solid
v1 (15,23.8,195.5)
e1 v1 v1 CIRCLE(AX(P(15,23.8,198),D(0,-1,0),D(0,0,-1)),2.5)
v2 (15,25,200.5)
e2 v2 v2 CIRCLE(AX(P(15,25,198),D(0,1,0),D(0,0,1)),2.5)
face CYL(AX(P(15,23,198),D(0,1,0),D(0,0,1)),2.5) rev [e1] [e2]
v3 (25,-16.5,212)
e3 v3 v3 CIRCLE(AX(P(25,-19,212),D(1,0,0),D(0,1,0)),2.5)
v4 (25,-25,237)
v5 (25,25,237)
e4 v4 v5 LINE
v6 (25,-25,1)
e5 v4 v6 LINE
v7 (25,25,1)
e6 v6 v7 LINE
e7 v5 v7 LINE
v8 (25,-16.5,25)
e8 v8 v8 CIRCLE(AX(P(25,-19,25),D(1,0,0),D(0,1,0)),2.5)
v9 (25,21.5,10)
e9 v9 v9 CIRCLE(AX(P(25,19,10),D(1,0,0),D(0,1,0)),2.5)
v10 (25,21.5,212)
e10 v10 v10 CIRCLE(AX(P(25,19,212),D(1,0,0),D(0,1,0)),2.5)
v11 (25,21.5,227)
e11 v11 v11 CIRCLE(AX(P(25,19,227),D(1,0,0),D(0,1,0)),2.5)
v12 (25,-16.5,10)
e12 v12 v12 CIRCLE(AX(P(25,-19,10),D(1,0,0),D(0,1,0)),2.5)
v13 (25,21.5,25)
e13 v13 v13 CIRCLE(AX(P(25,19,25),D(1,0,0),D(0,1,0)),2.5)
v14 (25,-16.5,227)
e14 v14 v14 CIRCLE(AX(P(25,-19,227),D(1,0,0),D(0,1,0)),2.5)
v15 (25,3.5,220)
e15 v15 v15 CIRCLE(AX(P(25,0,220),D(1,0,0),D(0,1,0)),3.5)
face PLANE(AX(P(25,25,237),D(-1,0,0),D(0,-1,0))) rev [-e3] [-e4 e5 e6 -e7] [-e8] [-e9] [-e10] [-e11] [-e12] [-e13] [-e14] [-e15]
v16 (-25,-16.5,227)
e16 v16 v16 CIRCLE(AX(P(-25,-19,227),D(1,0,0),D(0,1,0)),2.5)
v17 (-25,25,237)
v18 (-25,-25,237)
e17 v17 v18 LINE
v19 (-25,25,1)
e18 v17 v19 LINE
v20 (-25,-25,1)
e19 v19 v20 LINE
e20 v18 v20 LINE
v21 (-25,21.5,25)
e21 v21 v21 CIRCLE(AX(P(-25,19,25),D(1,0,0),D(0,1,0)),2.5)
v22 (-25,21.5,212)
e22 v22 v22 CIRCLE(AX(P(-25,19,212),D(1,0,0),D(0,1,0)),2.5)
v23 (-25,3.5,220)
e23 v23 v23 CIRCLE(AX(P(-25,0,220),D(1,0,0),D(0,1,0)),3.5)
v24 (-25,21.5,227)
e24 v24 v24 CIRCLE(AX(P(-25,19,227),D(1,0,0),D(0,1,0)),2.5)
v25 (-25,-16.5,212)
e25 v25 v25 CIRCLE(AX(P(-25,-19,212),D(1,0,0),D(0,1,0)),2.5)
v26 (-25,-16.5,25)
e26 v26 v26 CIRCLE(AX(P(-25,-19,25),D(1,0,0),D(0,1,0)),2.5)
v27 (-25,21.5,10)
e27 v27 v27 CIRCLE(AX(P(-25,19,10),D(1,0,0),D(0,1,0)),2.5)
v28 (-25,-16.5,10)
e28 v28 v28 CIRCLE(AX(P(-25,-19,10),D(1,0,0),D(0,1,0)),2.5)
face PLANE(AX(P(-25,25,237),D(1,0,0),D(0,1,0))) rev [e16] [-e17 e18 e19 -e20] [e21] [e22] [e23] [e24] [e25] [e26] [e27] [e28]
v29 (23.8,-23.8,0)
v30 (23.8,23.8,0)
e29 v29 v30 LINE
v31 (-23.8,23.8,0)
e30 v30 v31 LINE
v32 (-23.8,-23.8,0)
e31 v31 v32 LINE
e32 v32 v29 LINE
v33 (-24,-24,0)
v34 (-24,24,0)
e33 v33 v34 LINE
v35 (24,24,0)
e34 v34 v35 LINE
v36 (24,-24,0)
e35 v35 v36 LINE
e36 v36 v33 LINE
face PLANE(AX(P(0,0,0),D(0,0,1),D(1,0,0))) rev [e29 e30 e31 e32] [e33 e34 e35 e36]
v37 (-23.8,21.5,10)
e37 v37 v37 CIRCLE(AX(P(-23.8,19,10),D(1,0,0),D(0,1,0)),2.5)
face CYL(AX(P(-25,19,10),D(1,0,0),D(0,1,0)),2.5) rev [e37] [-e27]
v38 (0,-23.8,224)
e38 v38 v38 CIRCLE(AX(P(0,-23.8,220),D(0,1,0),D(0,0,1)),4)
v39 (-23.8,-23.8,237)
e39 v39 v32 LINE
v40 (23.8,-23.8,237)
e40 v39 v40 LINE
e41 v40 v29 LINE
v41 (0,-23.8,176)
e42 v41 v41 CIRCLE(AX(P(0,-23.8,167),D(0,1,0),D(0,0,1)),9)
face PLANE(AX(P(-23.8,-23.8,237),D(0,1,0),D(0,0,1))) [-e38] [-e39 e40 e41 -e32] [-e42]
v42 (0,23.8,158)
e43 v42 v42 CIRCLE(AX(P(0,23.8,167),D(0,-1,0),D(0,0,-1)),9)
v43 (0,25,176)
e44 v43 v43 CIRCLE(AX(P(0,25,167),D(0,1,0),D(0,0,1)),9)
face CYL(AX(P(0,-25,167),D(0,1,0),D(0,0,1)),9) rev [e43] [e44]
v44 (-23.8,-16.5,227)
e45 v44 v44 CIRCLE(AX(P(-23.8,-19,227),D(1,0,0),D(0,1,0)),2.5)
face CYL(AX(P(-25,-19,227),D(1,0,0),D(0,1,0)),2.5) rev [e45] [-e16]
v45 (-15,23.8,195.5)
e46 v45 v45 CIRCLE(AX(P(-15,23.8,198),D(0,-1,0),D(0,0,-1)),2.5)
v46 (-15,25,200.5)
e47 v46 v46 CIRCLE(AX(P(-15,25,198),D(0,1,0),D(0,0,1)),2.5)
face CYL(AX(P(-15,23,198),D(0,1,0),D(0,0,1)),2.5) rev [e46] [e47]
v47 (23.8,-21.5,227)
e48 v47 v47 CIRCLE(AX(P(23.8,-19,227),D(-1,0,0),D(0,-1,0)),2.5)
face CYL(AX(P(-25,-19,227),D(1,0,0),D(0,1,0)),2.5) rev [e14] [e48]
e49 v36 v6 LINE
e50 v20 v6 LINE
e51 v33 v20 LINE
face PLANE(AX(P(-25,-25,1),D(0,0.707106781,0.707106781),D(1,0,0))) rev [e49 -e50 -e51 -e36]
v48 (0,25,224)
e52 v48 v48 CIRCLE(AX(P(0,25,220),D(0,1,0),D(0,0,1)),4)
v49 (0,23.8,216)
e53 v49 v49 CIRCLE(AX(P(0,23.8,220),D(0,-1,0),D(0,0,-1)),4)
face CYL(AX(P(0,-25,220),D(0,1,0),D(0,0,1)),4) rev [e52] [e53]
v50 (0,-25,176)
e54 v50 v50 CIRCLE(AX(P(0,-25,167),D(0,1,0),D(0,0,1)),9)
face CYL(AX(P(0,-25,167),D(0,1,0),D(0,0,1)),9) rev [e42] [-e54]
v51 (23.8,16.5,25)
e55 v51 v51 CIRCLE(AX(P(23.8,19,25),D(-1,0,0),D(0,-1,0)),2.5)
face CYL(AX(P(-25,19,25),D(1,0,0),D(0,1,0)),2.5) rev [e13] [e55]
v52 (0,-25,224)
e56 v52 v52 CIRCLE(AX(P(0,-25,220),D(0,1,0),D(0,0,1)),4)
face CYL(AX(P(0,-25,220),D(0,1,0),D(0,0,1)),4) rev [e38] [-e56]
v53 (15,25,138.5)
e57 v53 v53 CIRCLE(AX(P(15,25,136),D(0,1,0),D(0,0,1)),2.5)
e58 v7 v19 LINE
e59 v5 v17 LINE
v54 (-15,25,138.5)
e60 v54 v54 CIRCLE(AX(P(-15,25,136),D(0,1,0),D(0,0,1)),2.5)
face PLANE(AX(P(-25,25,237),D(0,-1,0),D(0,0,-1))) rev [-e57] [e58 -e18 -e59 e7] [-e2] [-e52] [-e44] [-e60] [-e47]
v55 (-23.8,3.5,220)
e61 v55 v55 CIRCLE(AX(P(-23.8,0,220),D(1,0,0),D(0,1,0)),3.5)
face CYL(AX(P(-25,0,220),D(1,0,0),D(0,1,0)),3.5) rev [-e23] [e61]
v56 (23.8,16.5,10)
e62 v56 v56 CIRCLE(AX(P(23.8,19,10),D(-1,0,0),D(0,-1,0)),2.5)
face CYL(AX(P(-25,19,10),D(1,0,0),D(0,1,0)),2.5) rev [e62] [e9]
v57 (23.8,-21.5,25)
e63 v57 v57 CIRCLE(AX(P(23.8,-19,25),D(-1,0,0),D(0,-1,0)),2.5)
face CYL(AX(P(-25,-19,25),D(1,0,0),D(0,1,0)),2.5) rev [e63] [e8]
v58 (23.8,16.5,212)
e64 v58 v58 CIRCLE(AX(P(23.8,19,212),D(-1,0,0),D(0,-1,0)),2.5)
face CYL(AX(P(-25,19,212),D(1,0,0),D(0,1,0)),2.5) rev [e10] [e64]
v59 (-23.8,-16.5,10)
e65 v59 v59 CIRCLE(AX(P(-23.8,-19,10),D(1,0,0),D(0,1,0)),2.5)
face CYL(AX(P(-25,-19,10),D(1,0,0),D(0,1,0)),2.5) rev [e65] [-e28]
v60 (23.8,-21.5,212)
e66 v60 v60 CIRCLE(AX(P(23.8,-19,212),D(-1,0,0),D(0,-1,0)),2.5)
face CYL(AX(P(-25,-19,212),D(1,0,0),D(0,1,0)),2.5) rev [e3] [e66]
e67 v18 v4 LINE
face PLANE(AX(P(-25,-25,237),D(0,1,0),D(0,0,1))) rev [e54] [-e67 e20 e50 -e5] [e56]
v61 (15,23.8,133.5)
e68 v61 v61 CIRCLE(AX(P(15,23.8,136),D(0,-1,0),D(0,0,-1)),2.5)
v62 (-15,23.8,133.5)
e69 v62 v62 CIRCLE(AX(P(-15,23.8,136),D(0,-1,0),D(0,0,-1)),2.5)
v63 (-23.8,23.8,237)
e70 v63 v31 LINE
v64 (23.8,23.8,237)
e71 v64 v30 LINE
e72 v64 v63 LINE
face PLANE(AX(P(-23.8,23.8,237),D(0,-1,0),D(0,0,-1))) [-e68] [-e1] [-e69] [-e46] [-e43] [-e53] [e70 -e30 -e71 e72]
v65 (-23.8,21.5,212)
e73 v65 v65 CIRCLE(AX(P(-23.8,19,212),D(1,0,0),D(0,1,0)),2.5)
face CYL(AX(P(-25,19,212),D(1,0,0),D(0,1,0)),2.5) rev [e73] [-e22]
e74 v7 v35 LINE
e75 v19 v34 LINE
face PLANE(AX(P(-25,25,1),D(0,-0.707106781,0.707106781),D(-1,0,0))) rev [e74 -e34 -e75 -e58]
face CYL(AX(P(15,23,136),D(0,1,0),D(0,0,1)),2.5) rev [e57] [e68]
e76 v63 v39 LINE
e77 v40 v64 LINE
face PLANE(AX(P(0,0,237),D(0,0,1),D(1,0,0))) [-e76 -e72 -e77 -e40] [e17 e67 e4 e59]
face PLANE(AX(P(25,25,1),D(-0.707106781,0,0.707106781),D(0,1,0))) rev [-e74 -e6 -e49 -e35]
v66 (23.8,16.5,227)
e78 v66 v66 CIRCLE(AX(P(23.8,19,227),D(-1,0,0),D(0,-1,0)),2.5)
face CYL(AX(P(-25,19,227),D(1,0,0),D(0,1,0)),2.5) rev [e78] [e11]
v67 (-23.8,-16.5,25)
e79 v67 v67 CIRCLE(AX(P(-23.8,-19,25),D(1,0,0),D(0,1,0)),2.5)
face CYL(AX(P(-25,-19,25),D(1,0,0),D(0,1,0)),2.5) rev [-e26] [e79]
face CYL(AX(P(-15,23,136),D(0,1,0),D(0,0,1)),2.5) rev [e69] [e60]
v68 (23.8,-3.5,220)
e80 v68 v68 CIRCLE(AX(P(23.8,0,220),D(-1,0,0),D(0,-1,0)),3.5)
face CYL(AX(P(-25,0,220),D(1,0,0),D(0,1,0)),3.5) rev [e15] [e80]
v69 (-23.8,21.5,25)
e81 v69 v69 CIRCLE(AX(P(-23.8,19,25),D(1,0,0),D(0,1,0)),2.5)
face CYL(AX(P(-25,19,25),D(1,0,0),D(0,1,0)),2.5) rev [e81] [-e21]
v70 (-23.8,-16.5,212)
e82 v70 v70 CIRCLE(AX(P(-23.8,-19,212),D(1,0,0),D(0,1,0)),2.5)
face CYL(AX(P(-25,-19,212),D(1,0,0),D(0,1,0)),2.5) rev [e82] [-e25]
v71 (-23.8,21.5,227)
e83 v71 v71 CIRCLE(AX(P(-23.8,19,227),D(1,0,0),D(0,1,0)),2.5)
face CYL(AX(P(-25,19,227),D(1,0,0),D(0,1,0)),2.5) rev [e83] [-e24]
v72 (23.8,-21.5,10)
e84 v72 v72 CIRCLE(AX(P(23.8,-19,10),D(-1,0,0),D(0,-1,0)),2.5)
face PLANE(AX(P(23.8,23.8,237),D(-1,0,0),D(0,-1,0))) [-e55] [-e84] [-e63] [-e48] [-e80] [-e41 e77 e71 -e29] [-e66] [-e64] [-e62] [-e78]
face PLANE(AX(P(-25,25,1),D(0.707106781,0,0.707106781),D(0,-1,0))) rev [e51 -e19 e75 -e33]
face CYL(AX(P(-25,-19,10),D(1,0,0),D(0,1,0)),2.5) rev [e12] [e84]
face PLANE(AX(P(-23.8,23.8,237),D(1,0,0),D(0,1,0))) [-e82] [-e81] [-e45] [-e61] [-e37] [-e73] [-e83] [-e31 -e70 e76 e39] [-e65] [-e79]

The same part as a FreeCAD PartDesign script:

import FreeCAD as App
import Part
import Sketcher
Q = App.Units.Quantity


def edges_at(feature, points):
    """Names of the edges that pass closest to the given points."""
    edges = feature.Shape.Edges
    near = lambda p: min(range(len(edges)), key=lambda i: edges[i].distToShape(Part.Vertex(*p))[0])
    return sorted({f"Edge{near(p) + 1}" for p in points})


def add_polygon(sketch, points):
    """Adds a closed chain of lines whose ends are joined by coincident constraints."""
    first, n = sketch.GeometryCount, len(points)
    for a, b in zip(points, points[1:] + points[:1]):
        sketch.addGeometry(Part.LineSegment(App.Vector(*a, 0), App.Vector(*b, 0)), False)
    for i in range(n):
        sketch.addConstraint(Sketcher.Constraint("Coincident", first + i, 2, first + (i + 1) % n, 1))

doc = App.newDocument("Part")
body = doc.addObject("PartDesign::Body", "Body")

# Sketch on XY plane
sketch1 = body.newObject("Sketcher::SketchObject", "Sketch")
sketch1.AttachmentSupport = (doc.getObject("XY_Plane"), [""])
sketch1.MapMode = "FlatFace"
add_polygon(sketch1, [(-25, 25), (-25, -25), (25, -25), (25, 25)])  # lines 0-3
add_polygon(sketch1, [(24, -24), (-24, -24), (-24, 24), (24, 24)])  # lines 4-7
sketch1.addConstraint(Sketcher.Constraint("Vertical", 0))
sketch1.addConstraint(Sketcher.Constraint("Horizontal", 1))
sketch1.addConstraint(Sketcher.Constraint("Vertical", 2))
sketch1.addConstraint(Sketcher.Constraint("Horizontal", 3))
sketch1.addConstraint(Sketcher.Constraint("Horizontal", 4))
sketch1.addConstraint(Sketcher.Constraint("Vertical", 5))
sketch1.addConstraint(Sketcher.Constraint("Horizontal", 6))
sketch1.addConstraint(Sketcher.Constraint("Vertical", 7))
sketch1.addConstraint(Sketcher.Constraint("Symmetric", 0, 2, 2, 2, -1, 1))
sketch1.addConstraint(Sketcher.Constraint("Symmetric", 4, 2, 6, 2, -1, 1))
sketch1.addConstraint(Sketcher.Constraint("Equal", 3, 0))
sketch1.addConstraint(Sketcher.Constraint("Equal", 6, 5))
sketch1.addConstraint(Sketcher.Constraint("DistanceX", 1, 1, 1, 2, Q("50 mm")))
sketch1.addConstraint(Sketcher.Constraint("DistanceX", 4, 2, 4, 1, Q("47.6 mm")))
pad1 = body.newObject("PartDesign::Pad", "Pad")
pad1.Profile = sketch1
pad1.Length = 237

# Sketch on YZ plane
sketch2 = body.newObject("Sketcher::SketchObject", "Sketch001")
sketch2.AttachmentSupport = (doc.getObject("YZ_Plane"), [""])
sketch2.MapMode = "FlatFace"
sketch2.AttachmentOffset = App.Placement(App.Vector(0, 0, 25), App.Rotation())
sketch2.addGeometry(Part.Circle(App.Vector(19, 10, 0), App.Vector(0, 0, 1), 2.5), False)
sketch2.addGeometry(Part.Circle(App.Vector(19, 25, 0), App.Vector(0, 0, 1), 2.5), False)
sketch2.addGeometry(Part.Circle(App.Vector(-19, 25, 0), App.Vector(0, 0, 1), 2.5), False)
sketch2.addGeometry(Part.Circle(App.Vector(-19, 10, 0), App.Vector(0, 0, 1), 2.5), False)
sketch2.addGeometry(Part.Circle(App.Vector(19, 227, 0), App.Vector(0, 0, 1), 2.5), False)
sketch2.addGeometry(Part.Circle(App.Vector(19, 212, 0), App.Vector(0, 0, 1), 2.5), False)
sketch2.addGeometry(Part.Circle(App.Vector(-19, 212, 0), App.Vector(0, 0, 1), 2.5), False)
sketch2.addGeometry(Part.Circle(App.Vector(-19, 227, 0), App.Vector(0, 0, 1), 2.5), False)
sketch2.addGeometry(Part.Circle(App.Vector(0, 220, 0), App.Vector(0, 0, 1), 3.5), False)
sketch2.addConstraint(Sketcher.Constraint("Equal", 0, 1))
sketch2.addConstraint(Sketcher.Constraint("Equal", 1, 2))
sketch2.addConstraint(Sketcher.Constraint("Equal", 2, 3))
sketch2.addConstraint(Sketcher.Constraint("Equal", 3, 4))
sketch2.addConstraint(Sketcher.Constraint("Equal", 4, 5))
sketch2.addConstraint(Sketcher.Constraint("Equal", 5, 6))
sketch2.addConstraint(Sketcher.Constraint("Equal", 6, 7))
sketch2.addConstraint(Sketcher.Constraint("Symmetric", 1, 3, 2, 3, -2))
sketch2.addConstraint(Sketcher.Constraint("Symmetric", 0, 3, 3, 3, -2))
sketch2.addConstraint(Sketcher.Constraint("Symmetric", 5, 3, 6, 3, -2))
sketch2.addConstraint(Sketcher.Constraint("Symmetric", 4, 3, 7, 3, -2))
sketch2.addConstraint(Sketcher.Constraint("PointOnObject", 8, 3, -2))
sketch2.addConstraint(Sketcher.Constraint("Vertical", 0, 3, 1, 3))
sketch2.addConstraint(Sketcher.Constraint("Vertical", 1, 3, 4, 3))
sketch2.addConstraint(Sketcher.Constraint("Vertical", 4, 3, 5, 3))
sketch2.addConstraint(Sketcher.Constraint("Diameter", 0, Q("5 mm")))
sketch2.addConstraint(Sketcher.Constraint("Diameter", 8, Q("7 mm")))
sketch2.addConstraint(Sketcher.Constraint("DistanceX", -1, 1, 0, 3, Q("19 mm")))
sketch2.addConstraint(Sketcher.Constraint("DistanceY", -1, 1, 0, 3, Q("10 mm")))
sketch2.addConstraint(Sketcher.Constraint("DistanceY", -1, 1, 1, 3, Q("25 mm")))
sketch2.addConstraint(Sketcher.Constraint("DistanceY", -1, 1, 4, 3, Q("227 mm")))
sketch2.addConstraint(Sketcher.Constraint("DistanceY", -1, 1, 5, 3, Q("212 mm")))
sketch2.addConstraint(Sketcher.Constraint("DistanceY", -1, 1, 8, 3, Q("220 mm")))
pocket1 = body.newObject("PartDesign::Pocket", "Pocket")
pocket1.Profile = sketch2
pocket1.Type = "ThroughAll"
doc.recompute()

chamfer = body.newObject("PartDesign::Chamfer", "Chamfer")
chamfer.Base = (pocket1, edges_at(pocket1, [
    (0, -25, 0),
    (-25, 0, 0),
    (0, 25, 0),
    (25, 0, 0),
]))
chamfer.Size = 1

# Sketch on XZ plane
sketch3 = body.newObject("Sketcher::SketchObject", "Sketch002")
sketch3.AttachmentSupport = (doc.getObject("XZ_Plane"), [""])
sketch3.MapMode = "FlatFace"
sketch3.AttachmentOffset = App.Placement(App.Vector(0, 0, -25), App.Rotation())
sketch3.addGeometry(Part.Circle(App.Vector(0, 220, 0), App.Vector(0, 0, 1), 4), False)
sketch3.addConstraint(Sketcher.Constraint("PointOnObject", 0, 3, -2))
sketch3.addConstraint(Sketcher.Constraint("Diameter", 0, Q("8 mm")))
sketch3.addConstraint(Sketcher.Constraint("DistanceY", -1, 1, 0, 3, Q("220 mm")))
pocket2 = body.newObject("PartDesign::Pocket", "Pocket001")
pocket2.Profile = sketch3
pocket2.Type = "ThroughAll"
pocket2.Reversed = True

# Sketch on XZ plane
sketch4 = body.newObject("Sketcher::SketchObject", "Sketch003")
sketch4.AttachmentSupport = (doc.getObject("XZ_Plane"), [""])
sketch4.MapMode = "FlatFace"
sketch4.AttachmentOffset = App.Placement(App.Vector(0, 0, -25), App.Rotation())
sketch4.addGeometry(Part.Circle(App.Vector(0, 167, 0), App.Vector(0, 0, 1), 9), False)
sketch4.addConstraint(Sketcher.Constraint("PointOnObject", 0, 3, -2))
sketch4.addConstraint(Sketcher.Constraint("Diameter", 0, Q("18 mm")))
sketch4.addConstraint(Sketcher.Constraint("DistanceY", -1, 1, 0, 3, Q("167 mm")))
pocket3 = body.newObject("PartDesign::Pocket", "Pocket002")
pocket3.Profile = sketch4
pocket3.Type = "ThroughAll"
pocket3.Reversed = True

# Sketch on XZ plane
sketch5 = body.newObject("Sketcher::SketchObject", "Sketch004")
sketch5.AttachmentSupport = (doc.getObject("XZ_Plane"), [""])
sketch5.MapMode = "FlatFace"
sketch5.AttachmentOffset = App.Placement(App.Vector(0, 0, -25), App.Rotation())
sketch5.addGeometry(Part.Circle(App.Vector(-15, 136, 0), App.Vector(0, 0, 1), 2.5), False)
sketch5.addGeometry(Part.Circle(App.Vector(15, 136, 0), App.Vector(0, 0, 1), 2.5), False)
sketch5.addGeometry(Part.Circle(App.Vector(-15, 198, 0), App.Vector(0, 0, 1), 2.5), False)
sketch5.addGeometry(Part.Circle(App.Vector(15, 198, 0), App.Vector(0, 0, 1), 2.5), False)
sketch5.addConstraint(Sketcher.Constraint("Equal", 0, 1))
sketch5.addConstraint(Sketcher.Constraint("Equal", 1, 2))
sketch5.addConstraint(Sketcher.Constraint("Equal", 2, 3))
sketch5.addConstraint(Sketcher.Constraint("Symmetric", 0, 3, 1, 3, -2))
sketch5.addConstraint(Sketcher.Constraint("Symmetric", 2, 3, 3, 3, -2))
sketch5.addConstraint(Sketcher.Constraint("Vertical", 0, 3, 2, 3))
sketch5.addConstraint(Sketcher.Constraint("Diameter", 0, Q("5 mm")))
sketch5.addConstraint(Sketcher.Constraint("DistanceX", 0, 3, -1, 1, Q("15 mm")))
sketch5.addConstraint(Sketcher.Constraint("DistanceY", -1, 1, 0, 3, Q("136 mm")))
sketch5.addConstraint(Sketcher.Constraint("DistanceY", -1, 1, 2, 3, Q("198 mm")))
pocket4 = body.newObject("PartDesign::Pocket", "Pocket003")
pocket4.Profile = sketch5
pocket4.Length = 2
pocket4.Reversed = True

doc.recompute()
